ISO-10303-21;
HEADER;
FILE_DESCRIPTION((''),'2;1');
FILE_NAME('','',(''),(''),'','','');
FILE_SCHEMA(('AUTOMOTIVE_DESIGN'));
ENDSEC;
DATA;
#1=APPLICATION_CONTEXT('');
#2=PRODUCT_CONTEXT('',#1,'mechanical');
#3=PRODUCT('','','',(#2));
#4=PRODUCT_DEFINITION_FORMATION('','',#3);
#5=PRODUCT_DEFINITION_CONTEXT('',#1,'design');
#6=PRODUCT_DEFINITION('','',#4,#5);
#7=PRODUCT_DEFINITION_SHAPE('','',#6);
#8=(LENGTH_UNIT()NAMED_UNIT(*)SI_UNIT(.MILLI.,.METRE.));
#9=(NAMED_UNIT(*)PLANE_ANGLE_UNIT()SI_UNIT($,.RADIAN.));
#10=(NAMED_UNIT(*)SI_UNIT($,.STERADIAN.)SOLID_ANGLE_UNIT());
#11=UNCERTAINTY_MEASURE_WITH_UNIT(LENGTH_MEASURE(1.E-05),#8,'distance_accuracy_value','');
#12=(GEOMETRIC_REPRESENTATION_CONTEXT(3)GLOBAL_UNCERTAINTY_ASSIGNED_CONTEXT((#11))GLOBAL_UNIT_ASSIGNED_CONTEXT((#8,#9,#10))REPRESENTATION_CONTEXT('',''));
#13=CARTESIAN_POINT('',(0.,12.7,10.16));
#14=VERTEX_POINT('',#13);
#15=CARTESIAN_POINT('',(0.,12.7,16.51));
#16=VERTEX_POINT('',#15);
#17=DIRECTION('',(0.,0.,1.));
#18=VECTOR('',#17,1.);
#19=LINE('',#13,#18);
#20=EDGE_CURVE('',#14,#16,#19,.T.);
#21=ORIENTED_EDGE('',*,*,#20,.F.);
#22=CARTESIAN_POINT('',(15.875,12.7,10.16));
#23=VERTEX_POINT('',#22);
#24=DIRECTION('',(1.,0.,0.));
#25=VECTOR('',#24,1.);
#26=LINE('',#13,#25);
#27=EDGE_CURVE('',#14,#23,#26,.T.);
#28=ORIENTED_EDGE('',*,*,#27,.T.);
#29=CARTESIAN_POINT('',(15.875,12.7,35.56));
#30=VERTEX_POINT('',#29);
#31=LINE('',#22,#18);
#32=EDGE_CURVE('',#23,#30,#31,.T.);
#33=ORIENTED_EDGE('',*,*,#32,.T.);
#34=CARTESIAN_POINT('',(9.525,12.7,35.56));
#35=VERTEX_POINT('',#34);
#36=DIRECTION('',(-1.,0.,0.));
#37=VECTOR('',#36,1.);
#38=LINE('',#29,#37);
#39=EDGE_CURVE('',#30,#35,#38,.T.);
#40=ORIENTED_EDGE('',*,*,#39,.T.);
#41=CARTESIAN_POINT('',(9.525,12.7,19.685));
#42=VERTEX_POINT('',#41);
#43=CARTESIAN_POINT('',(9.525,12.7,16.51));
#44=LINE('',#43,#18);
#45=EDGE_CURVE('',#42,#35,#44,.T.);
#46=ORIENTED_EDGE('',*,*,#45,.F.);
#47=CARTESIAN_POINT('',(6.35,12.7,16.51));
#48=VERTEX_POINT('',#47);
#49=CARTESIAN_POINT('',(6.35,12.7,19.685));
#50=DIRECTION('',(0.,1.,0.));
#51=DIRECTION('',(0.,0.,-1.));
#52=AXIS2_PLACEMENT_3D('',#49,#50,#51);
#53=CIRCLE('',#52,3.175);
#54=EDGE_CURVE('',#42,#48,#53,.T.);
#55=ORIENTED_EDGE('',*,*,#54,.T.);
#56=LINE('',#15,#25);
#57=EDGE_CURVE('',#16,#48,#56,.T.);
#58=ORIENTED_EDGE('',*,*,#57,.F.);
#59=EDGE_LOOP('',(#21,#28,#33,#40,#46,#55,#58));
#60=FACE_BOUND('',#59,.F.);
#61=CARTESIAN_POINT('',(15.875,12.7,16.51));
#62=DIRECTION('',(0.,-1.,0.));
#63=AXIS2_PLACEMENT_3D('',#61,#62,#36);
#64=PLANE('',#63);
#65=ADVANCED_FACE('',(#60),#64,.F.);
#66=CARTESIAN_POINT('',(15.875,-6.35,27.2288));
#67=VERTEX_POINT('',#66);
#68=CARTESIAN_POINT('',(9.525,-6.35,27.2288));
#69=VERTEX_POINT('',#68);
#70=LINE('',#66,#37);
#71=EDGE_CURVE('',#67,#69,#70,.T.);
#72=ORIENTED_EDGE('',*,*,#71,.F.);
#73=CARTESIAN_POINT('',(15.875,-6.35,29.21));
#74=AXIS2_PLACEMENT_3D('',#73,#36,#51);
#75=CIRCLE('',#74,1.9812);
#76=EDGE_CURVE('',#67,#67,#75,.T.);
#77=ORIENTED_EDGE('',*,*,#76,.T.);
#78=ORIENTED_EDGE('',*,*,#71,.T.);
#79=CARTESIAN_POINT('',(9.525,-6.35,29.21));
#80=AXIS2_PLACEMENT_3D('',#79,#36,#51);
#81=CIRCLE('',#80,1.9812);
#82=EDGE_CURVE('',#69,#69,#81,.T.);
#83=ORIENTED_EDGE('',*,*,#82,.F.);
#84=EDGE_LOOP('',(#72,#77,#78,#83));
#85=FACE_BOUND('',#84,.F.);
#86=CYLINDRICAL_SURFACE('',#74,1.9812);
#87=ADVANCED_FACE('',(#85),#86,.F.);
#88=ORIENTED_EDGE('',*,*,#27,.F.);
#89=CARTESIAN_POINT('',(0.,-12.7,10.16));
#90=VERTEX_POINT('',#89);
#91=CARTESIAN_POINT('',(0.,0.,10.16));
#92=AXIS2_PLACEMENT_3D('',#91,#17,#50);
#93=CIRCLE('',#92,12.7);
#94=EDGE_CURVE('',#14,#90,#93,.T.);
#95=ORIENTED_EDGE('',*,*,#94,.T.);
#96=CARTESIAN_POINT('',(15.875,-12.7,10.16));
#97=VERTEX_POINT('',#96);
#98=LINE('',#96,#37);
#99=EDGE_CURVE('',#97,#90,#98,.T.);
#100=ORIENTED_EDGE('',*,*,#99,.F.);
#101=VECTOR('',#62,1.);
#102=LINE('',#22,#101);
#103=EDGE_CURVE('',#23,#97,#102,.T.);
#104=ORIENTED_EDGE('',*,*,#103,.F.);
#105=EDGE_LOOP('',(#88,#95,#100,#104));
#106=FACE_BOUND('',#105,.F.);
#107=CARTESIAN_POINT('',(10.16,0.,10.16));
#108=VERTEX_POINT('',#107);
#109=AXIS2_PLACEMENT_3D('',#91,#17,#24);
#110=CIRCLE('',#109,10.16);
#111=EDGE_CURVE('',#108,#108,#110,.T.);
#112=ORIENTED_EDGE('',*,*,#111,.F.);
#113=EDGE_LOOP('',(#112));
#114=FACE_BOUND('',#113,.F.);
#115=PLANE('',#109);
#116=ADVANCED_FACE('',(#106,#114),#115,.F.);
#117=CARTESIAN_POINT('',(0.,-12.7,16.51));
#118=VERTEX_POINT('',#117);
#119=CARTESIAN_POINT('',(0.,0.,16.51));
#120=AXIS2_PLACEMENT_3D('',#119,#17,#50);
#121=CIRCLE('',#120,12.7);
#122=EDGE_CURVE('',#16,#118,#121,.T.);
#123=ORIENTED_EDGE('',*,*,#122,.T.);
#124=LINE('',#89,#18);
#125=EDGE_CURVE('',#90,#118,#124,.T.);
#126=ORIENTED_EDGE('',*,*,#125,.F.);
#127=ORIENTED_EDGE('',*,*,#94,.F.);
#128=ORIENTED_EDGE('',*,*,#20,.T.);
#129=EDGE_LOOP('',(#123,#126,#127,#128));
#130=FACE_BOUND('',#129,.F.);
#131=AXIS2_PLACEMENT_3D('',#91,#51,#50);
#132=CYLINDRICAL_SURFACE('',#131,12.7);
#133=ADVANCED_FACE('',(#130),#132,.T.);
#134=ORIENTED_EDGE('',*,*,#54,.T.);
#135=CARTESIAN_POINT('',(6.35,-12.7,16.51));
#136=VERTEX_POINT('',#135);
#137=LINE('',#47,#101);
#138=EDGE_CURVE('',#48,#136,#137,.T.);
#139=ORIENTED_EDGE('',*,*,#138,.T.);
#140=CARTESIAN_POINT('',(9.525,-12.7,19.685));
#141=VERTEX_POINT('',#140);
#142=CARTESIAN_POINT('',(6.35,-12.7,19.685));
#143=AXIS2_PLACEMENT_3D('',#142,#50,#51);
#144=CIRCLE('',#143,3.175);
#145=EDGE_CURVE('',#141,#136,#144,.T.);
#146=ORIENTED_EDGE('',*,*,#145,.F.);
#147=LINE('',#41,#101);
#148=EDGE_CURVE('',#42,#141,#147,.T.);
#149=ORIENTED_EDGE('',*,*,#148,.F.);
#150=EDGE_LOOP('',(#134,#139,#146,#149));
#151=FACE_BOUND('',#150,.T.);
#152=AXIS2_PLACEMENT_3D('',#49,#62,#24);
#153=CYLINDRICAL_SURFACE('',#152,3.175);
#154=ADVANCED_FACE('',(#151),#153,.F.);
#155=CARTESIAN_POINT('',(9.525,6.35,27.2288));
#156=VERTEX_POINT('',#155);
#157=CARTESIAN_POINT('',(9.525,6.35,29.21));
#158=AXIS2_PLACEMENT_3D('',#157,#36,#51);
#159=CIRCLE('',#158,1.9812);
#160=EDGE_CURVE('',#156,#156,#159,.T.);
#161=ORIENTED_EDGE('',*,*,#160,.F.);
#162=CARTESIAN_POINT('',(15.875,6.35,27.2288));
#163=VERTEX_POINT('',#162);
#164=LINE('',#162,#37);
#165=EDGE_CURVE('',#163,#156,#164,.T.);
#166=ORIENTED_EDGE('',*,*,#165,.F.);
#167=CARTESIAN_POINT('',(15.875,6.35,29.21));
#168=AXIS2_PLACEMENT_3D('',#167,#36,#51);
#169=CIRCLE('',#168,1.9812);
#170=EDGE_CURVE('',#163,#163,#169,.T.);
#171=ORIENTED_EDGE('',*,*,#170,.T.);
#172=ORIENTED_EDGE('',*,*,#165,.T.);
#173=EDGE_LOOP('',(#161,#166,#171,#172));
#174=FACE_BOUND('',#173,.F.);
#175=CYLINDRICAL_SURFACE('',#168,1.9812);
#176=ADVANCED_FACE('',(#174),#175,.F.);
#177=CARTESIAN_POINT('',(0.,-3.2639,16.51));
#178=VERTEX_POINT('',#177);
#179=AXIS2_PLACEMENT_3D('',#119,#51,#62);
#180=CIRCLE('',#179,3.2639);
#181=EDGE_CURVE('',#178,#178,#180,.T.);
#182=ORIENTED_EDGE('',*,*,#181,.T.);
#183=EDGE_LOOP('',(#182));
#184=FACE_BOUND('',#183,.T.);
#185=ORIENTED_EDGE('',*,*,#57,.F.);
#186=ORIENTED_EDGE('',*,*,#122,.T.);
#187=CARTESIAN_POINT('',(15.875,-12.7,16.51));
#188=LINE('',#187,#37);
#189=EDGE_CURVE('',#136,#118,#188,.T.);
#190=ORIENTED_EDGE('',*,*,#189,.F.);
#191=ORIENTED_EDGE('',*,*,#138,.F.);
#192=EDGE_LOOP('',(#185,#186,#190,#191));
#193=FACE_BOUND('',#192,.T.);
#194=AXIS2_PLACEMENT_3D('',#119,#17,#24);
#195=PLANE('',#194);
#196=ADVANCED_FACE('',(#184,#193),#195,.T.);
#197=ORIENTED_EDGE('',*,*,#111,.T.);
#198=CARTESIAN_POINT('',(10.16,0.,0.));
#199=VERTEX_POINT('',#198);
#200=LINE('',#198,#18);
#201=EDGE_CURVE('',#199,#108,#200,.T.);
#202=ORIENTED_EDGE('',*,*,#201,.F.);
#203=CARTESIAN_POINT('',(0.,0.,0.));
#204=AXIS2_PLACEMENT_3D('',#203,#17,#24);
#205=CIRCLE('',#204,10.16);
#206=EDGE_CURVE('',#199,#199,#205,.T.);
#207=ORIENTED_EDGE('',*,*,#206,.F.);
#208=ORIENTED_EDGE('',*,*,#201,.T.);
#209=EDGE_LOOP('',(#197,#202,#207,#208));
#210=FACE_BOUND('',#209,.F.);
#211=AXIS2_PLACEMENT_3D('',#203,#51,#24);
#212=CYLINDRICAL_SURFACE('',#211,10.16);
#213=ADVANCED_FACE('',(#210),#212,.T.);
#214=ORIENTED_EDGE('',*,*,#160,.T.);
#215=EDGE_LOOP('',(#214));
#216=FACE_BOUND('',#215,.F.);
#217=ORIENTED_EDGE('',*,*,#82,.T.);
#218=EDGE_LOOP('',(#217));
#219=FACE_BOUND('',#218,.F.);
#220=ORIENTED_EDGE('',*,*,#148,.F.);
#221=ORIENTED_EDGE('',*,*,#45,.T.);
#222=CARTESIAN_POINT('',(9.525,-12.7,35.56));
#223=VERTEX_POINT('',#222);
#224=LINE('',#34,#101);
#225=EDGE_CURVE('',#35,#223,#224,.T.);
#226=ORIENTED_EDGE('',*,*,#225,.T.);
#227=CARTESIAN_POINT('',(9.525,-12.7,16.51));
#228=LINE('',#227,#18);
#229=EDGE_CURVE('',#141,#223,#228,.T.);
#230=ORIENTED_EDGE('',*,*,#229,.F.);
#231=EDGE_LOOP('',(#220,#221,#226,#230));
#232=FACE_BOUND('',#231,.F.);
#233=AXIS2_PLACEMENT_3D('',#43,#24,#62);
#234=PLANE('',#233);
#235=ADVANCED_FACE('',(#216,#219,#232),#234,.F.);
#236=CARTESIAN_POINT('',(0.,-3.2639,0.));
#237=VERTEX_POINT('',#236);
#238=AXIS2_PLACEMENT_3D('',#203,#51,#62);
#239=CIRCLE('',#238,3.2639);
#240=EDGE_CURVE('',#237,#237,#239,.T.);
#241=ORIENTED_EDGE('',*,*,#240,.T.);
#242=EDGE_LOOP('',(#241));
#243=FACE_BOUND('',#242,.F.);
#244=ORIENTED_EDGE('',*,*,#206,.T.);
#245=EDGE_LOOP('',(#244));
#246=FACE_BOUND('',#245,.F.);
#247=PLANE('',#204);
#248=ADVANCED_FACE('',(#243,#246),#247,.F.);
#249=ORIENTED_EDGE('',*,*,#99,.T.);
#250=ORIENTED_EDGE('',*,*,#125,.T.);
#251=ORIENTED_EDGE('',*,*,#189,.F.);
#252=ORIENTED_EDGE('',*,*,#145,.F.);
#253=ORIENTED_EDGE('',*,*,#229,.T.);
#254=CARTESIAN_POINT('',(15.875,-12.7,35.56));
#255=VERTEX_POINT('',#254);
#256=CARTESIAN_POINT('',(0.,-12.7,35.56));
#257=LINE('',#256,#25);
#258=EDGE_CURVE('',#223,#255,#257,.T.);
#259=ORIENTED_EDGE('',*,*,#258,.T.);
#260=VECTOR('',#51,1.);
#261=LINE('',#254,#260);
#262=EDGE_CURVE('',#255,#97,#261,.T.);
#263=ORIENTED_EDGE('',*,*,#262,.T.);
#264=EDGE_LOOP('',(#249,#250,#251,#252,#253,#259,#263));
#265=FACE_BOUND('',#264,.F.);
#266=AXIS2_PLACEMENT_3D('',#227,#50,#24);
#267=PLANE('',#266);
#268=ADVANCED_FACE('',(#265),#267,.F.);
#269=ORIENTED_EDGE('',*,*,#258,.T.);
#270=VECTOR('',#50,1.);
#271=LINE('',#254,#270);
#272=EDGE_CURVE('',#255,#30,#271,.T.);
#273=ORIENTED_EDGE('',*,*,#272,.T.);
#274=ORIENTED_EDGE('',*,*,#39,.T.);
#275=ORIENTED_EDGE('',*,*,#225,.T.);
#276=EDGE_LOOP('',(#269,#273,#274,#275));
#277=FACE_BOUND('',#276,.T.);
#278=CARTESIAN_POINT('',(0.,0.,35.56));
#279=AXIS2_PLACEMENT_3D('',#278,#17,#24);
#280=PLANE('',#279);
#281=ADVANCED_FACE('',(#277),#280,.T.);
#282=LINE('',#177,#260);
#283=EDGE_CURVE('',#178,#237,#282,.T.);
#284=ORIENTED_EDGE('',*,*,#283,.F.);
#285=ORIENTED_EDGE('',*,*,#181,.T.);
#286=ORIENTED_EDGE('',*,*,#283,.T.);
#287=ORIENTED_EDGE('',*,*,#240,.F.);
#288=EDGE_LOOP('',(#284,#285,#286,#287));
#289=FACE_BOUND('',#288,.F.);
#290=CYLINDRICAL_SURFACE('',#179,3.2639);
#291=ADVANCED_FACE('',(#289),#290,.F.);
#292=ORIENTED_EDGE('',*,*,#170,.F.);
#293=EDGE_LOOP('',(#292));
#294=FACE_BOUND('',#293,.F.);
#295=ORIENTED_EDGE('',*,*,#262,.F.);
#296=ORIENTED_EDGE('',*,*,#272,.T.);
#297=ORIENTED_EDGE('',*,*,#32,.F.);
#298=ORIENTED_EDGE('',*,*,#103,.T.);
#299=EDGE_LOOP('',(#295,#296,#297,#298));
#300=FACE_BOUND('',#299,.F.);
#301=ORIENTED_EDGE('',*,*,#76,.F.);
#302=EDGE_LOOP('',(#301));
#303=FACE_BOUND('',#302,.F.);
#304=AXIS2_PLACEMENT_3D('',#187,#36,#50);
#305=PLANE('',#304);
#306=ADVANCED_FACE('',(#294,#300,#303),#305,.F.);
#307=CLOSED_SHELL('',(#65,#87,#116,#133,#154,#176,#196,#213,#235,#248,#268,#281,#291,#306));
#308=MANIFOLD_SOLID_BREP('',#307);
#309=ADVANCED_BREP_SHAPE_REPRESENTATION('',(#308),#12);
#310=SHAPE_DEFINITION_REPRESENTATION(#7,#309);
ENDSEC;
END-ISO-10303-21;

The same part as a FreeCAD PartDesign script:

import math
import FreeCAD as App
import Part
import Sketcher
from FreeCAD import Vector
Q = App.Units.Quantity


def edges_at(feature, points):
    """Names of the edges that pass closest to the given points."""
    edges = feature.Shape.Edges
    near = lambda p: min(range(len(edges)), key=lambda i: edges[i].distToShape(Part.Vertex(*p))[0])
    return sorted({f"Edge{near(p) + 1}" for p in points})


def add_polygon(sketch, points):
    """Adds a closed chain of lines whose ends are joined by coincident constraints."""
    first, n = sketch.GeometryCount, len(points)
    for a, b in zip(points, points[1:] + points[:1]):
        sketch.addGeometry(Part.LineSegment(App.Vector(*a, 0), App.Vector(*b, 0)), False)
    for i in range(n):
        sketch.addConstraint(Sketcher.Constraint("Coincident", first + i, 2, first + (i + 1) % n, 1))

doc = App.newDocument("Part")
params = doc.addObject("Spreadsheet::Sheet", "Params")
for row, (alias, value) in enumerate([
    ("sketch1_diameter", "0.8 in"),
    ("pad1_length", "0.4 in"),
    ("sketch2_radius", "0.5 in"),
    ("sketch2_width", "0.625 in"),
    ("pad2_length", "0.25 in"),
    ("sketch3_diameter", "0.257 in"),
    ("hole_diameter", "0.257 in"),
    ("sketch4_width", "0.25 in"),
    ("sketch4_height", "1 in"),
    ("pad3_length", "0.75 in"),
    ("fillet_radius", "0.125 in"),
    ("sketch5_diameter", "0.156 in"),
    ("hole2_diameter", "0.156 in"),
], start=1):
    params.set(f"A{row}", alias)
    params.set(f"B{row}", "=" + value)
    params.setAlias(f"B{row}", alias)

body = doc.addObject("PartDesign::Body", "Body")

# Sketch on XY plane
sketch1 = body.newObject("Sketcher::SketchObject", "Sketch")
sketch1.AttachmentSupport = (doc.getObject("XY_Plane"), [""])
sketch1.MapMode = "FlatFace"
sketch1.addGeometry(Part.Circle(Vector(0, 0, 0), Vector(0, 0, 1), 10), False)
sketch1.addConstraint([
    Sketcher.Constraint("Coincident", 0, 3, -1, 1),
    Sketcher.Constraint("Diameter", 0, Q("0.8 in")),
])
sketch1.setExpression("Constraints[1]", "Params.sketch1_diameter")
pad1 = body.newObject("PartDesign::Pad", "Pad")
pad1.Profile = sketch1
pad1.setExpression("Length", "Params.pad1_length")

# Sketch on XY plane
sketch2 = body.newObject("Sketcher::SketchObject", "Sketch001")
sketch2.AttachmentSupport = (doc.getObject("XY_Plane"), [""])
sketch2.MapMode = "FlatFace"
sketch2.AttachmentOffset = App.Placement(Vector(0, 0, 0.4 * 25.4), App.Rotation())
sketch2.addGeometry([
    Part.LineSegment(Vector(16, 13, 0), Vector(0, 13, 0)),
    Part.ArcOfCircle(Part.Circle(Vector(0, 0, 0), Vector(0, 0, 1), 13), math.radians(90), math.radians(270)),
    Part.LineSegment(Vector(0, -13, 0), Vector(16, -13, 0)),
    Part.LineSegment(Vector(16, -13, 0), Vector(16, 13, 0)),
], False)
sketch2.addConstraint([
    Sketcher.Constraint("Tangent", 0, 2, 1, 1),
    Sketcher.Constraint("Tangent", 1, 2, 2, 1),
    Sketcher.Constraint("Coincident", 2, 2, 3, 1),
    Sketcher.Constraint("Coincident", 3, 2, 0, 1),
    Sketcher.Constraint("Horizontal", 0),
    Sketcher.Constraint("Horizontal", 2),
    Sketcher.Constraint("Vertical", 3),
    Sketcher.Constraint("Coincident", 1, 3, -1, 1),
    Sketcher.Constraint("Radius", 1, Q("0.5 in")),
    Sketcher.Constraint("DistanceX", 0, 2, 0, 1, Q("0.625 in")),
])
sketch2.setExpression("Constraints[8]", "Params.sketch2_radius")
sketch2.setExpression("Constraints[9]", "Params.sketch2_width")
pad2 = body.newObject("PartDesign::Pad", "Pad001")
pad2.Profile = sketch2
pad2.setExpression("Length", "Params.pad2_length")

# Sketch on XY plane
sketch3 = body.newObject("Sketcher::SketchObject", "Sketch002")
sketch3.AttachmentSupport = (doc.getObject("XY_Plane"), [""])
sketch3.MapMode = "FlatFace"
sketch3.AttachmentOffset = App.Placement(Vector(0, 0, 0.65 * 25.4), App.Rotation())
sketch3.addGeometry(Part.Circle(Vector(0, 0, 0), Vector(0, 0, 1), 3.3), False)
sketch3.addConstraint([
    Sketcher.Constraint("Coincident", 0, 3, -1, 1),
    Sketcher.Constraint("Diameter", 0, Q("0.257 in")),
])
sketch3.setExpression("Constraints[1]", "Params.sketch3_diameter")
doc.recompute()
hole = body.newObject("PartDesign::Hole", "Hole")
hole.Profile = sketch3
hole.ThreadType = "None"
hole.setExpression("Diameter", "Params.hole_diameter")
hole.DepthType = "ThroughAll"

# Sketch on XY plane
sketch4 = body.newObject("Sketcher::SketchObject", "Sketch003")
sketch4.AttachmentSupport = (doc.getObject("XY_Plane"), [""])
sketch4.MapMode = "FlatFace"
sketch4.AttachmentOffset = App.Placement(Vector(0, 0, 0.65 * 25.4), App.Rotation())
add_polygon(sketch4, [(16, -13), (16, 13), (10, 13), (10, -13)])  # lines 0-3
sketch4.addConstraint([
    Sketcher.Constraint("Vertical", 0),
    Sketcher.Constraint("Horizontal", 1),
    Sketcher.Constraint("Vertical", 2),
    Sketcher.Constraint("Horizontal", 3),
    Sketcher.Constraint("DistanceX", 1, 2, 1, 1, Q("0.25 in")),
    Sketcher.Constraint("DistanceY", 0, 1, 0, 2, Q("1 in")),
    Sketcher.Constraint("DistanceY", -1, 1, 0, 2, Q("0.5 in")),
    Sketcher.Constraint("DistanceX", -1, 1, 0, 2, Q("0.625 in")),
])
sketch4.setExpression("Constraints[8]", "Params.sketch4_width")
sketch4.setExpression("Constraints[9]", "Params.sketch4_height")
pad3 = body.newObject("PartDesign::Pad", "Pad002")
pad3.Profile = sketch4
pad3.setExpression("Length", "Params.pad3_length")
doc.recompute()

fillet = body.newObject("PartDesign::Fillet", "Fillet")
fillet.Base = (pad3, edges_at(pad3, [(9.525, 0, 16.51)]))
fillet.setExpression("Radius", "Params.fillet_radius")

# Sketch on YZ plane
sketch5 = body.newObject("Sketcher::SketchObject", "Sketch004")
sketch5.AttachmentSupport = (doc.getObject("YZ_Plane"), [""])
sketch5.MapMode = "FlatFace"
sketch5.AttachmentOffset = App.Placement(Vector(0, 0, 0.625 * 25.4), App.Rotation())
sketch5.addGeometry([
    Part.Circle(Vector(6.3, 29.2, 0), Vector(0, 0, 1), 2),
    Part.Circle(Vector(-6.3, 29.2, 0), Vector(0, 0, 1), 2),
], False)
sketch5.addConstraint([
    Sketcher.Constraint("Equal", 0, 1),
    Sketcher.Constraint("Symmetric", 0, 3, 1, 3, -2),
    Sketcher.Constraint("Diameter", 0, Q("0.156 in")),
    Sketcher.Constraint("DistanceX", 1, 3, 0, 3, Q("0.5 in")),
    Sketcher.Constraint("DistanceY", -1, 1, 0, 3, Q("1.15 in")),
])
sketch5.setExpression("Constraints[2]", "Params.sketch5_diameter")
doc.recompute()
hole2 = body.newObject("PartDesign::Hole", "Hole001")
hole2.Profile = sketch5
hole2.ThreadType = "None"
hole2.setExpression("Diameter", "Params.hole2_diameter")
hole2.DepthType = "ThroughAll"

doc.recompute()
